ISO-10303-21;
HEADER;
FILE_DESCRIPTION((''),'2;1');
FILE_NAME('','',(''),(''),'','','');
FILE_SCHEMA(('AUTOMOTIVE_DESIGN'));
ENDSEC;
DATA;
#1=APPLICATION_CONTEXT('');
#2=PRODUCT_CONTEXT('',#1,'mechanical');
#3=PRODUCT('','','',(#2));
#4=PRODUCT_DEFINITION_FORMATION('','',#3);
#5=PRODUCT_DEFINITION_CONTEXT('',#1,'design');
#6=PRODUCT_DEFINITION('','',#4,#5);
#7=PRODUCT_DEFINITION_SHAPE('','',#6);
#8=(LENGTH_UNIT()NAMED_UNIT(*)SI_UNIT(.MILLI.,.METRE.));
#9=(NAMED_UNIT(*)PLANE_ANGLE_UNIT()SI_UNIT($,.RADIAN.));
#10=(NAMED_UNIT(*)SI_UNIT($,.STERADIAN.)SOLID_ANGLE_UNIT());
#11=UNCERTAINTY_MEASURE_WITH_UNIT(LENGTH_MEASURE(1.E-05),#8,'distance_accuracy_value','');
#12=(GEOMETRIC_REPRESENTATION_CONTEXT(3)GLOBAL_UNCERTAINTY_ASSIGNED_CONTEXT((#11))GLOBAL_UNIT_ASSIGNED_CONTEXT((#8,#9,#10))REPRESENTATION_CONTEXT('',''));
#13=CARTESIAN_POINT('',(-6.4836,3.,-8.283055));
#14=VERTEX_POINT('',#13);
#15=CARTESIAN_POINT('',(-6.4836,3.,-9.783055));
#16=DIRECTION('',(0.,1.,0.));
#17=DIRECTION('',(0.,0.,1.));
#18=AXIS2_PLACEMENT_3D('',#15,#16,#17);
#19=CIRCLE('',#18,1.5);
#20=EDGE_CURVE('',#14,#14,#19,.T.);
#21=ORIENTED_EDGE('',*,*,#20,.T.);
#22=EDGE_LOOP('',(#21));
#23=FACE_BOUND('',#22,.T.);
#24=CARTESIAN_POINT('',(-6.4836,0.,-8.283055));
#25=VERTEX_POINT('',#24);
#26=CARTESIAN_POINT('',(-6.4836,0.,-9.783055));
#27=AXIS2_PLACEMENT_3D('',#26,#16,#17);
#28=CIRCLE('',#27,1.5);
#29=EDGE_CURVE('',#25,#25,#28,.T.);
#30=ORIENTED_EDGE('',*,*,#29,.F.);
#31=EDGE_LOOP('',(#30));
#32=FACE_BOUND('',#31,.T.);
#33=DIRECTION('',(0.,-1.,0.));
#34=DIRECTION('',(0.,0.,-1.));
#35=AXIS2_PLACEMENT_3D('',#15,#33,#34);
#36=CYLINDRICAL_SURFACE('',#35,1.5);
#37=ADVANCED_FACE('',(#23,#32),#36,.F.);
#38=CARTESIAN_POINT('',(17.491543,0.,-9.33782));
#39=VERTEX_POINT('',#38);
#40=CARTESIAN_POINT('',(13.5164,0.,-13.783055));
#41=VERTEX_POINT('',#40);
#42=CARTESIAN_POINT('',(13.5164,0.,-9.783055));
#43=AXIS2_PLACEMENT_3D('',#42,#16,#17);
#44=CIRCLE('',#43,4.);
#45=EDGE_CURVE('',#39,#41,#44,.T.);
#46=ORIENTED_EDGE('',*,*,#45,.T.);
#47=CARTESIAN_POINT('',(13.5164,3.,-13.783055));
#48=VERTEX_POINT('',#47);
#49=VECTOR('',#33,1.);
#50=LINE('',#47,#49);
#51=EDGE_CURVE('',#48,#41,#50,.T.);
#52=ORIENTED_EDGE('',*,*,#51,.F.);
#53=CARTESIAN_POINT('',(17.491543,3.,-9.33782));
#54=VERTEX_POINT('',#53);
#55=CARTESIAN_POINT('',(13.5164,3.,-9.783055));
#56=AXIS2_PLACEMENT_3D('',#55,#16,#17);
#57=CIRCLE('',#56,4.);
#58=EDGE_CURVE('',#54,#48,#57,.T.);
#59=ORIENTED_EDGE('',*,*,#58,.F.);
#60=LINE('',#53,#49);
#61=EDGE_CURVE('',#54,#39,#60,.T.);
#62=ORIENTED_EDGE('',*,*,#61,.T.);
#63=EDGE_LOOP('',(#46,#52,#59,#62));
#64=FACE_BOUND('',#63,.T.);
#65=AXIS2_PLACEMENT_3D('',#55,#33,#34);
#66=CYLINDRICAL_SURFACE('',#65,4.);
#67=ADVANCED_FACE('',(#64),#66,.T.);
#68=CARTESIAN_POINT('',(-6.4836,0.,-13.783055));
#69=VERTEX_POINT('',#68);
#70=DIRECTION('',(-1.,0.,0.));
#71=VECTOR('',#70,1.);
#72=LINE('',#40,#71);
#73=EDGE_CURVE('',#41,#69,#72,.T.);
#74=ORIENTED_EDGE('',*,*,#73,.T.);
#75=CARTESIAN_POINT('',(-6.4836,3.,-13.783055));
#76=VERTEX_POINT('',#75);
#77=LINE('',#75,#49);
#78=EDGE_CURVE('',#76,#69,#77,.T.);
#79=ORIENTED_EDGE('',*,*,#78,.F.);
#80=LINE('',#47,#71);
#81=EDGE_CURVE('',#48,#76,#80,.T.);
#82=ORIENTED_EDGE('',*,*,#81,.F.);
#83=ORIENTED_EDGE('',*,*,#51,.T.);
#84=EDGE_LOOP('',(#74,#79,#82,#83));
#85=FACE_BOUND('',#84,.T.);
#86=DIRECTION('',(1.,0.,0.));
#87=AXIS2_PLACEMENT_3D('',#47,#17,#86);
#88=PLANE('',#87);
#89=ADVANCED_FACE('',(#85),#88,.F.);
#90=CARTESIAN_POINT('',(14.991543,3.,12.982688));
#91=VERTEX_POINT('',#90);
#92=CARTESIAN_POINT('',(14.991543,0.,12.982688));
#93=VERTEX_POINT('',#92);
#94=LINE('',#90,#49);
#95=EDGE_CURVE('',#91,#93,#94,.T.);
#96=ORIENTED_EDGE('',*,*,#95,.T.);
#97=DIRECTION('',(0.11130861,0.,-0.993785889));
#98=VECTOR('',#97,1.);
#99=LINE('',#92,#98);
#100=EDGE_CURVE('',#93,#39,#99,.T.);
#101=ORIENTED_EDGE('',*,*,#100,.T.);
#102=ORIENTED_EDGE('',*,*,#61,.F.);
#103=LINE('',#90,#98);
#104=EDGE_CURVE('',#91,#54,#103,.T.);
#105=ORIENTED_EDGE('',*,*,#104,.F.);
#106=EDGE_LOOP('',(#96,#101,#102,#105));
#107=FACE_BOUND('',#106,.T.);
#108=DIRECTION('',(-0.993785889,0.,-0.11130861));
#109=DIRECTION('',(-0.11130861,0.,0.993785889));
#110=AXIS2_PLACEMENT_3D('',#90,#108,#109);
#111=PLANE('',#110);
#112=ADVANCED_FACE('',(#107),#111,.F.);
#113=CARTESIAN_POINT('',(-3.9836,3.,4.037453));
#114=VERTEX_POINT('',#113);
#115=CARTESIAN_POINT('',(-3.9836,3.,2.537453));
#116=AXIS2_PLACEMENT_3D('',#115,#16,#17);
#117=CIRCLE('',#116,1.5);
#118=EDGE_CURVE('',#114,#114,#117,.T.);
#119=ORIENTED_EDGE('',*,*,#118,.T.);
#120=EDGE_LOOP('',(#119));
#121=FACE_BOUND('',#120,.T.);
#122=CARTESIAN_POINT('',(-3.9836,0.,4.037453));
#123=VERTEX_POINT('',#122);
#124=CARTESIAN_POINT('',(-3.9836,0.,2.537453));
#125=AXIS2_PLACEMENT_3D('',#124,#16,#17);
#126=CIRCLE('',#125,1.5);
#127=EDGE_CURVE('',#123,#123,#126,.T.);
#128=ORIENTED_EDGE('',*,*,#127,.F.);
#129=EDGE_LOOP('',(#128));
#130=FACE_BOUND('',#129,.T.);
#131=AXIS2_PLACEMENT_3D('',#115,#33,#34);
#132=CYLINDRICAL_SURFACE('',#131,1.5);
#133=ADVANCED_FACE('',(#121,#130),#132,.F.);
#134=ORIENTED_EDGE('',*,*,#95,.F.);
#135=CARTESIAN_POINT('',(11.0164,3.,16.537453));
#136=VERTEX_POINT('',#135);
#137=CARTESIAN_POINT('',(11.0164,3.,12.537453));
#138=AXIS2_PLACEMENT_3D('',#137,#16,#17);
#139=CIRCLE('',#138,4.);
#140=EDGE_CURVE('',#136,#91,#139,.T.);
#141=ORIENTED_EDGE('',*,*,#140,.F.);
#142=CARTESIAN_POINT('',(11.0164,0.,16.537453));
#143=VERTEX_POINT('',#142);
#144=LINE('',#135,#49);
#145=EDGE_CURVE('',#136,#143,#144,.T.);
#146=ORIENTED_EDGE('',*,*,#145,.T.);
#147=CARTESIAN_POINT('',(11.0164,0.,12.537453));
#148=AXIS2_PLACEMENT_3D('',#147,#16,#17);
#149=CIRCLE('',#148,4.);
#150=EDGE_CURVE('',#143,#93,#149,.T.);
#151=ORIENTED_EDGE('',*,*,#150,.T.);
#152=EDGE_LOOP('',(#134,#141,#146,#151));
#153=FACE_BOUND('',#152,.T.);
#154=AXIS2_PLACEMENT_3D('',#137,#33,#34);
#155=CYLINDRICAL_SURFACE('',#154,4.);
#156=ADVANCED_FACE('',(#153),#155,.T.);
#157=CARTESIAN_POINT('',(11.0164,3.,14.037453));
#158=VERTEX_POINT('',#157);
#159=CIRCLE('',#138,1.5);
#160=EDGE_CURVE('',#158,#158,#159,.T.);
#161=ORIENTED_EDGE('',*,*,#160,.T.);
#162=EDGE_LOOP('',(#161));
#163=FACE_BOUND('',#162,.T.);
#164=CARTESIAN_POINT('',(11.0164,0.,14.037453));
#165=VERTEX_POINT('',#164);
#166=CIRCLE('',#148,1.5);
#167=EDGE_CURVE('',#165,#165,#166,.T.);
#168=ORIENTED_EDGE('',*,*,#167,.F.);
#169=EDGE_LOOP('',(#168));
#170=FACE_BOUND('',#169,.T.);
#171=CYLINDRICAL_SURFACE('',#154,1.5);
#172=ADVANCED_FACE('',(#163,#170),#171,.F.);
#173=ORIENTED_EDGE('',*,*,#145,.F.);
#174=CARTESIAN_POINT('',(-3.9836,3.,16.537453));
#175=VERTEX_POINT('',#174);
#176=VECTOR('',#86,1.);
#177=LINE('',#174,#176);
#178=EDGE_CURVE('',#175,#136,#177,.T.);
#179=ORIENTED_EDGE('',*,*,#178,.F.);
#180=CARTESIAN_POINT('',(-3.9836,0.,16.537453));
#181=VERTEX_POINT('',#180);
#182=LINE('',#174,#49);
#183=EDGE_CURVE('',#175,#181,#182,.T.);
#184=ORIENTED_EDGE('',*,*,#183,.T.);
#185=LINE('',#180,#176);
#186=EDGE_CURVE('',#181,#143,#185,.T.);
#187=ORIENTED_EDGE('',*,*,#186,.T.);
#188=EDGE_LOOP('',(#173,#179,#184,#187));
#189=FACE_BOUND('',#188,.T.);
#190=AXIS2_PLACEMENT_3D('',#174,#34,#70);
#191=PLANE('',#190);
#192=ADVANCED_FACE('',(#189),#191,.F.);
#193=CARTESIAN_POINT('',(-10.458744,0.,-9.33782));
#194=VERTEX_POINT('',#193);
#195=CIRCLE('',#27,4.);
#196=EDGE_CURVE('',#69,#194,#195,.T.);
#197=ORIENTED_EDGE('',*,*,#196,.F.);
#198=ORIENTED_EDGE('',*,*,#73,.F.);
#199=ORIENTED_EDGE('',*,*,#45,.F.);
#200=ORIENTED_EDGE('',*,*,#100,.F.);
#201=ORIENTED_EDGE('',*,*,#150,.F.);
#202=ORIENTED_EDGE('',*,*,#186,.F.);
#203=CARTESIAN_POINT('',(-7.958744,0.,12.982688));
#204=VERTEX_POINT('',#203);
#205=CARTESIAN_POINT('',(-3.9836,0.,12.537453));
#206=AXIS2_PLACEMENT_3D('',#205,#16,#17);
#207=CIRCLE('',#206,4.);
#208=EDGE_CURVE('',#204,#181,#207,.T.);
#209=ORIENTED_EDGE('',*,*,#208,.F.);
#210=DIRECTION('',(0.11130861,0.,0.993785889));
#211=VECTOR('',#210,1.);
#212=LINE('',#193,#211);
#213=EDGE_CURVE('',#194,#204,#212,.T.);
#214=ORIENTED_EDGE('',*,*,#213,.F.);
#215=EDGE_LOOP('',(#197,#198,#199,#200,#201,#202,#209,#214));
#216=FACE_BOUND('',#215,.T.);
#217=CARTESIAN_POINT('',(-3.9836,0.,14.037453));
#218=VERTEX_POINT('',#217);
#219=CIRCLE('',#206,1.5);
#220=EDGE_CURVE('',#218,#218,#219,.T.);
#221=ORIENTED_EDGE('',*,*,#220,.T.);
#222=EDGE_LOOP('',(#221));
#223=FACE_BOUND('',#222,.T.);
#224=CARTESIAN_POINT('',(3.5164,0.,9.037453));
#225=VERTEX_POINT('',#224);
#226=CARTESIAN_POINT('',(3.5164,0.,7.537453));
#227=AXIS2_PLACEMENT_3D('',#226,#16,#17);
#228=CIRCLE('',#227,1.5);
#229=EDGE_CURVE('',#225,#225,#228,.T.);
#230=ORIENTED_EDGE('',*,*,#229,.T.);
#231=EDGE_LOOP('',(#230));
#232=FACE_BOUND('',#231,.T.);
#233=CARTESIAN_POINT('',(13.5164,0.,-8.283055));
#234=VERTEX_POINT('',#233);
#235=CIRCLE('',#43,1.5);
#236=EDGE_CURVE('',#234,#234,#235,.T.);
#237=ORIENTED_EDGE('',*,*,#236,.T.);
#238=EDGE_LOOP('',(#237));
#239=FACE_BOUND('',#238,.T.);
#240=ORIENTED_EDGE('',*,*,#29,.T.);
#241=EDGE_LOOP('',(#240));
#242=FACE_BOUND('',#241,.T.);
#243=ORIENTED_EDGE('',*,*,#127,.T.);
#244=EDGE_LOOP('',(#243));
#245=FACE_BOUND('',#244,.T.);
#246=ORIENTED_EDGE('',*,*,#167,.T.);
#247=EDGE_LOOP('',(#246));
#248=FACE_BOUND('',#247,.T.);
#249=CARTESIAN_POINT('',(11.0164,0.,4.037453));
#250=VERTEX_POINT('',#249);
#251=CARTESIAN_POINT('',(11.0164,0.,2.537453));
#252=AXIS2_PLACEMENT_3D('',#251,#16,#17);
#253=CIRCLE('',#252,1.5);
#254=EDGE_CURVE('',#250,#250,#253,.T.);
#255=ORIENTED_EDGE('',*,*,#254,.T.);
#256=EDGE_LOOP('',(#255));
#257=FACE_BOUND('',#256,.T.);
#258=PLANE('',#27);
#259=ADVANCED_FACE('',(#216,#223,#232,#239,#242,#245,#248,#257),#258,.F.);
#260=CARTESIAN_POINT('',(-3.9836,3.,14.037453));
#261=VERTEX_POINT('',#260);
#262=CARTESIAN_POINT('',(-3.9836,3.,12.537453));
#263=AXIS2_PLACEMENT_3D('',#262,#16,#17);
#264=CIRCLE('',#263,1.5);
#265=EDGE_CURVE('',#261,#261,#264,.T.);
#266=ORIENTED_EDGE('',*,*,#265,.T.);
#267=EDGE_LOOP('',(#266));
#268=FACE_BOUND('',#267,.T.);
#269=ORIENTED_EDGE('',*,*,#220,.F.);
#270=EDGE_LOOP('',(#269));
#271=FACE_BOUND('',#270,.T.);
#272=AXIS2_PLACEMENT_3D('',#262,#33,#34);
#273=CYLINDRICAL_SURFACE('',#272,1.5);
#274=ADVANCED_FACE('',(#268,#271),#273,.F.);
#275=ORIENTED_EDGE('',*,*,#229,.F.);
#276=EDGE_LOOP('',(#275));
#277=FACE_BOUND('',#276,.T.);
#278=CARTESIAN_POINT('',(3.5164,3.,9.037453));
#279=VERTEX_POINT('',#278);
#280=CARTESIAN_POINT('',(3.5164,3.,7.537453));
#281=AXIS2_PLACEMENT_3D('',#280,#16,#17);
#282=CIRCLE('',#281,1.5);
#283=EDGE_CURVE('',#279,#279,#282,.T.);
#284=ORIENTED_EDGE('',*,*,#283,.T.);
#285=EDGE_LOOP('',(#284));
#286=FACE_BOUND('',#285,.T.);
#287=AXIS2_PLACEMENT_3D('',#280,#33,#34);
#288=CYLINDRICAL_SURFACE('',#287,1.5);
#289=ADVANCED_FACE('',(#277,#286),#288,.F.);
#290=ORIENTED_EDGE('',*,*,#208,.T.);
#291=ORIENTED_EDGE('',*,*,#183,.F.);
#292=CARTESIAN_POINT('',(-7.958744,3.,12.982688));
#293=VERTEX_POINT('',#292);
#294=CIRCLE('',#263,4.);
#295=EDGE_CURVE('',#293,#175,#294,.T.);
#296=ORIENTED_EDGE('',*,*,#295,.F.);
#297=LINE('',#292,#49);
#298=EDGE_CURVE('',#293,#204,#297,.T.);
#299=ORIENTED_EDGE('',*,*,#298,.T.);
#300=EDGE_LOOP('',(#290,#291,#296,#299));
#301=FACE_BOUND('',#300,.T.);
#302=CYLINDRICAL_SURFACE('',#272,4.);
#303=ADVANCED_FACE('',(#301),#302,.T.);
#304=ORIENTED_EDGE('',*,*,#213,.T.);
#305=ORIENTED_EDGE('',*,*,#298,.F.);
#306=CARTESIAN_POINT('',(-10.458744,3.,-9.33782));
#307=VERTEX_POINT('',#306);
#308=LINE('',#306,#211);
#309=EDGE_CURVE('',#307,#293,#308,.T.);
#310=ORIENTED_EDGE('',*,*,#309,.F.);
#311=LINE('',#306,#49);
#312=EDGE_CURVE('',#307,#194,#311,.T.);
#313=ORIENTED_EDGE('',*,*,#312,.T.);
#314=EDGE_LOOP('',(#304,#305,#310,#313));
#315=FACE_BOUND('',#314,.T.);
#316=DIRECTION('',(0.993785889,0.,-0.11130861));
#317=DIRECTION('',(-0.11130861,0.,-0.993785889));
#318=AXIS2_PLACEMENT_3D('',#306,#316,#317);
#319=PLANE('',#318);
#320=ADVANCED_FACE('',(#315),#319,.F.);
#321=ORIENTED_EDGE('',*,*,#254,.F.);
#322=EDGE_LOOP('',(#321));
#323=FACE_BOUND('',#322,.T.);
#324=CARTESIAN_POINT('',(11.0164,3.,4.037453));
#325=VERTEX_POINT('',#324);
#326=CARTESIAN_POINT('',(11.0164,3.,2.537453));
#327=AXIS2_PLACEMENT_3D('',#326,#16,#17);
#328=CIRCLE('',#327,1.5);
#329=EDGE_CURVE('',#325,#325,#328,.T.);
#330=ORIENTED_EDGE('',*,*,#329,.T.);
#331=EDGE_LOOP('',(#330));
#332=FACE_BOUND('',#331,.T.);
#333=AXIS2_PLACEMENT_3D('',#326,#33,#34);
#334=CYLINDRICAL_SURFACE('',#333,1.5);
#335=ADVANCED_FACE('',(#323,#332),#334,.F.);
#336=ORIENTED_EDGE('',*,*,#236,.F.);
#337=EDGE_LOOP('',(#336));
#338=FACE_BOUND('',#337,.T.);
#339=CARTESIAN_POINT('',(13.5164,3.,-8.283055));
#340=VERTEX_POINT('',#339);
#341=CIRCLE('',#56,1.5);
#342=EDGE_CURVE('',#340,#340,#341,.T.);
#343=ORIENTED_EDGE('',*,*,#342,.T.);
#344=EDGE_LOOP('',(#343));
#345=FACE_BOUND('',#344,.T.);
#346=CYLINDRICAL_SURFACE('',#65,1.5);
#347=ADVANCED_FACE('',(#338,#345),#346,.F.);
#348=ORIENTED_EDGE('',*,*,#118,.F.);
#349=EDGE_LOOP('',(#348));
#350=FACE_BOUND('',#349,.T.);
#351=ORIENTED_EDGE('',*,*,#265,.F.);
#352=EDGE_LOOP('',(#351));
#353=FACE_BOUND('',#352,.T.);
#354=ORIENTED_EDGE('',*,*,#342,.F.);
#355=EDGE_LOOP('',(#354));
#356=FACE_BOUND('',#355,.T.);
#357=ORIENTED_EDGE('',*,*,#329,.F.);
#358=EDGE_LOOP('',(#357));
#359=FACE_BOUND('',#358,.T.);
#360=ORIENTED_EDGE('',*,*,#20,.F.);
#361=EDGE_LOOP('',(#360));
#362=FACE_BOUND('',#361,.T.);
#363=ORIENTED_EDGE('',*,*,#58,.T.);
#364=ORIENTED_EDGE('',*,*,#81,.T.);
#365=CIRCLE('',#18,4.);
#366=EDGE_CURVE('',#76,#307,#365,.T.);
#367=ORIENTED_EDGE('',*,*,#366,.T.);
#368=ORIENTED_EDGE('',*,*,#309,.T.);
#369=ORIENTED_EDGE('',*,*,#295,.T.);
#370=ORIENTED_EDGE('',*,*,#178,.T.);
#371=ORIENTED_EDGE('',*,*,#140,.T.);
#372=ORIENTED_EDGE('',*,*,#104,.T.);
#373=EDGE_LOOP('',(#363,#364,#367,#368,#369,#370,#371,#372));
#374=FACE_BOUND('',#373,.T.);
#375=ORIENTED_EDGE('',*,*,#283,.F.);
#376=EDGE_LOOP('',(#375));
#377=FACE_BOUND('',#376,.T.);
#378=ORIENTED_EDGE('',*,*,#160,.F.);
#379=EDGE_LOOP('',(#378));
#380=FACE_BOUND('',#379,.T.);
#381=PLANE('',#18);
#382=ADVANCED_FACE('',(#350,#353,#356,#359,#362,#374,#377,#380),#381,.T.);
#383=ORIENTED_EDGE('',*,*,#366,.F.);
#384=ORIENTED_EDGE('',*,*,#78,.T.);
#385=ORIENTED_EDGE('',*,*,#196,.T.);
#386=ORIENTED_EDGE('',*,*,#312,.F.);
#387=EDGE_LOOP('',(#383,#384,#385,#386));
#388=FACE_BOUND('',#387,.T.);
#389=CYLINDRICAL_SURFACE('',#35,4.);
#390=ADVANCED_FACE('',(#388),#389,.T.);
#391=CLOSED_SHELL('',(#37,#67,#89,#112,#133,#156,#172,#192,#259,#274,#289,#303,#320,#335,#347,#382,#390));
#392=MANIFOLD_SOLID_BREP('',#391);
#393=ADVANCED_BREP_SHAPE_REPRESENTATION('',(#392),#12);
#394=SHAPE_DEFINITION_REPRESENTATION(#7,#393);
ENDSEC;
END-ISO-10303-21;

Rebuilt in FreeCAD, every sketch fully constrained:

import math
import FreeCAD as App
import Part
import Sketcher
from FreeCAD import Vector

doc = App.newDocument("Part")
body = doc.addObject("PartDesign::Body", "Body")

# Sketch on XZ plane
sketch1 = body.newObject("Sketcher::SketchObject", "Sketch")
sketch1.AttachmentSupport = (doc.getObject("XZ_Plane"), [""])
sketch1.MapMode = "FlatFace"
sketch1.addGeometry([
    Part.LineSegment(Vector(-10.458744, -9.33782, 0), Vector(-7.958744, 12.982688, 0)),  # 0
    Part.ArcOfCircle(Part.Circle(Vector(-3.9836, 12.537453, 0), Vector(0, 0, 1), 4), math.radians(90), math.radians(173.609243)),  # 1
    Part.LineSegment(Vector(-3.9836, 16.537453, 0), Vector(11.0164, 16.537453, 0)),  # 2
    Part.ArcOfCircle(Part.Circle(Vector(11.0164, 12.537453, 0), Vector(0, 0, 1), 4), math.radians(6.390757), math.radians(90)),  # 3
    Part.LineSegment(Vector(14.991543, 12.982688, 0), Vector(17.491543, -9.33782, 0)),  # 4
    Part.ArcOfCircle(Part.Circle(Vector(13.5164, -9.783055, 0), Vector(0, 0, 1), 4), math.radians(-90), math.radians(6.390757)),  # 5
    Part.LineSegment(Vector(13.5164, -13.783055, 0), Vector(-6.4836, -13.783055, 0)),  # 6
    Part.ArcOfCircle(Part.Circle(Vector(-6.4836, -9.783055, 0), Vector(0, 0, 1), 4), math.radians(173.609243), math.radians(270)),  # 7
    Part.Circle(Vector(-3.9836, 12.537453, 0), Vector(0, 0, 1), 1.5),  # 8
    Part.Circle(Vector(-3.9836, 2.537453, 0), Vector(0, 0, 1), 1.5),  # 9
    Part.Circle(Vector(11.0164, 12.537453, 0), Vector(0, 0, 1), 1.5),  # 10
    Part.Circle(Vector(3.5164, 7.537453, 0), Vector(0, 0, 1), 1.5),  # 11
    Part.Circle(Vector(11.0164, 2.537453, 0), Vector(0, 0, 1), 1.5),  # 12
    Part.Circle(Vector(-6.4836, -9.783055, 0), Vector(0, 0, 1), 1.5),  # 13
    Part.Circle(Vector(13.5164, -9.783055, 0), Vector(0, 0, 1), 1.5),  # 14
], False)
sketch1.addConstraint([
    Sketcher.Constraint("Tangent", 0, 2, 1, 2),
    Sketcher.Constraint("Tangent", 1, 1, 2, 1),
    Sketcher.Constraint("Tangent", 2, 2, 3, 2),
    Sketcher.Constraint("Tangent", 3, 1, 4, 1),
    Sketcher.Constraint("Tangent", 4, 2, 5, 2),
    Sketcher.Constraint("Tangent", 5, 1, 6, 1),
    Sketcher.Constraint("Tangent", 6, 2, 7, 2),
    Sketcher.Constraint("Tangent", 7, 1, 0, 1),
    Sketcher.Constraint("Horizontal", 2),
    Sketcher.Constraint("Horizontal", 6),
    Sketcher.Constraint("Coincident", 8, 3, 1, 3),
    Sketcher.Constraint("Coincident", 10, 3, 3, 3),
    Sketcher.Constraint("Coincident", 13, 3, 7, 3),
    Sketcher.Constraint("Coincident", 14, 3, 5, 3),
    Sketcher.Constraint("Equal", 1, 3),
    Sketcher.Constraint("Equal", 3, 5),
    Sketcher.Constraint("Equal", 5, 7),
    Sketcher.Constraint("Equal", 8, 9),
    Sketcher.Constraint("Equal", 9, 10),
    Sketcher.Constraint("Equal", 10, 11),
    Sketcher.Constraint("Equal", 11, 12),
    Sketcher.Constraint("Equal", 12, 13),
    Sketcher.Constraint("Equal", 13, 14),
    Sketcher.Constraint("Horizontal", 9, 3, 12, 3),
    Sketcher.Constraint("Horizontal", 0, 2, 3, 1),
    Sketcher.Constraint("Vertical", 8, 3, 9, 3),
    Sketcher.Constraint("Vertical", 10, 3, 12, 3),
    Sketcher.Constraint("Diameter", 8, 3.0),
    Sketcher.Constraint("Radius", 1, 4.0),
    Sketcher.Constraint("DistanceX", 2, 1, 2, 2, 15.0),
    Sketcher.Constraint("DistanceX", 6, 2, 6, 1, 20.0),
    Sketcher.Constraint("DistanceY", 9, 3, 8, 3, 10.0),
    Sketcher.Constraint("DistanceY", 11, 3, 8, 3, 5.0),
    Sketcher.Constraint("DistanceX", 13, 3, 11, 3, 10.0),
    Sketcher.Constraint("DistanceX", 1, 3, -1, 1, 3.9836),
    Sketcher.Constraint("DistanceY", 4, 2, -1, 1, 9.33782),
    Sketcher.Constraint("DistanceY", 5, 3, 3, 3, 22.320508),
])
pad1 = body.newObject("PartDesign::Pad", "Pad")
pad1.Profile = sketch1
pad1.Length = 3
pad1.Reversed = True

doc.recompute()
